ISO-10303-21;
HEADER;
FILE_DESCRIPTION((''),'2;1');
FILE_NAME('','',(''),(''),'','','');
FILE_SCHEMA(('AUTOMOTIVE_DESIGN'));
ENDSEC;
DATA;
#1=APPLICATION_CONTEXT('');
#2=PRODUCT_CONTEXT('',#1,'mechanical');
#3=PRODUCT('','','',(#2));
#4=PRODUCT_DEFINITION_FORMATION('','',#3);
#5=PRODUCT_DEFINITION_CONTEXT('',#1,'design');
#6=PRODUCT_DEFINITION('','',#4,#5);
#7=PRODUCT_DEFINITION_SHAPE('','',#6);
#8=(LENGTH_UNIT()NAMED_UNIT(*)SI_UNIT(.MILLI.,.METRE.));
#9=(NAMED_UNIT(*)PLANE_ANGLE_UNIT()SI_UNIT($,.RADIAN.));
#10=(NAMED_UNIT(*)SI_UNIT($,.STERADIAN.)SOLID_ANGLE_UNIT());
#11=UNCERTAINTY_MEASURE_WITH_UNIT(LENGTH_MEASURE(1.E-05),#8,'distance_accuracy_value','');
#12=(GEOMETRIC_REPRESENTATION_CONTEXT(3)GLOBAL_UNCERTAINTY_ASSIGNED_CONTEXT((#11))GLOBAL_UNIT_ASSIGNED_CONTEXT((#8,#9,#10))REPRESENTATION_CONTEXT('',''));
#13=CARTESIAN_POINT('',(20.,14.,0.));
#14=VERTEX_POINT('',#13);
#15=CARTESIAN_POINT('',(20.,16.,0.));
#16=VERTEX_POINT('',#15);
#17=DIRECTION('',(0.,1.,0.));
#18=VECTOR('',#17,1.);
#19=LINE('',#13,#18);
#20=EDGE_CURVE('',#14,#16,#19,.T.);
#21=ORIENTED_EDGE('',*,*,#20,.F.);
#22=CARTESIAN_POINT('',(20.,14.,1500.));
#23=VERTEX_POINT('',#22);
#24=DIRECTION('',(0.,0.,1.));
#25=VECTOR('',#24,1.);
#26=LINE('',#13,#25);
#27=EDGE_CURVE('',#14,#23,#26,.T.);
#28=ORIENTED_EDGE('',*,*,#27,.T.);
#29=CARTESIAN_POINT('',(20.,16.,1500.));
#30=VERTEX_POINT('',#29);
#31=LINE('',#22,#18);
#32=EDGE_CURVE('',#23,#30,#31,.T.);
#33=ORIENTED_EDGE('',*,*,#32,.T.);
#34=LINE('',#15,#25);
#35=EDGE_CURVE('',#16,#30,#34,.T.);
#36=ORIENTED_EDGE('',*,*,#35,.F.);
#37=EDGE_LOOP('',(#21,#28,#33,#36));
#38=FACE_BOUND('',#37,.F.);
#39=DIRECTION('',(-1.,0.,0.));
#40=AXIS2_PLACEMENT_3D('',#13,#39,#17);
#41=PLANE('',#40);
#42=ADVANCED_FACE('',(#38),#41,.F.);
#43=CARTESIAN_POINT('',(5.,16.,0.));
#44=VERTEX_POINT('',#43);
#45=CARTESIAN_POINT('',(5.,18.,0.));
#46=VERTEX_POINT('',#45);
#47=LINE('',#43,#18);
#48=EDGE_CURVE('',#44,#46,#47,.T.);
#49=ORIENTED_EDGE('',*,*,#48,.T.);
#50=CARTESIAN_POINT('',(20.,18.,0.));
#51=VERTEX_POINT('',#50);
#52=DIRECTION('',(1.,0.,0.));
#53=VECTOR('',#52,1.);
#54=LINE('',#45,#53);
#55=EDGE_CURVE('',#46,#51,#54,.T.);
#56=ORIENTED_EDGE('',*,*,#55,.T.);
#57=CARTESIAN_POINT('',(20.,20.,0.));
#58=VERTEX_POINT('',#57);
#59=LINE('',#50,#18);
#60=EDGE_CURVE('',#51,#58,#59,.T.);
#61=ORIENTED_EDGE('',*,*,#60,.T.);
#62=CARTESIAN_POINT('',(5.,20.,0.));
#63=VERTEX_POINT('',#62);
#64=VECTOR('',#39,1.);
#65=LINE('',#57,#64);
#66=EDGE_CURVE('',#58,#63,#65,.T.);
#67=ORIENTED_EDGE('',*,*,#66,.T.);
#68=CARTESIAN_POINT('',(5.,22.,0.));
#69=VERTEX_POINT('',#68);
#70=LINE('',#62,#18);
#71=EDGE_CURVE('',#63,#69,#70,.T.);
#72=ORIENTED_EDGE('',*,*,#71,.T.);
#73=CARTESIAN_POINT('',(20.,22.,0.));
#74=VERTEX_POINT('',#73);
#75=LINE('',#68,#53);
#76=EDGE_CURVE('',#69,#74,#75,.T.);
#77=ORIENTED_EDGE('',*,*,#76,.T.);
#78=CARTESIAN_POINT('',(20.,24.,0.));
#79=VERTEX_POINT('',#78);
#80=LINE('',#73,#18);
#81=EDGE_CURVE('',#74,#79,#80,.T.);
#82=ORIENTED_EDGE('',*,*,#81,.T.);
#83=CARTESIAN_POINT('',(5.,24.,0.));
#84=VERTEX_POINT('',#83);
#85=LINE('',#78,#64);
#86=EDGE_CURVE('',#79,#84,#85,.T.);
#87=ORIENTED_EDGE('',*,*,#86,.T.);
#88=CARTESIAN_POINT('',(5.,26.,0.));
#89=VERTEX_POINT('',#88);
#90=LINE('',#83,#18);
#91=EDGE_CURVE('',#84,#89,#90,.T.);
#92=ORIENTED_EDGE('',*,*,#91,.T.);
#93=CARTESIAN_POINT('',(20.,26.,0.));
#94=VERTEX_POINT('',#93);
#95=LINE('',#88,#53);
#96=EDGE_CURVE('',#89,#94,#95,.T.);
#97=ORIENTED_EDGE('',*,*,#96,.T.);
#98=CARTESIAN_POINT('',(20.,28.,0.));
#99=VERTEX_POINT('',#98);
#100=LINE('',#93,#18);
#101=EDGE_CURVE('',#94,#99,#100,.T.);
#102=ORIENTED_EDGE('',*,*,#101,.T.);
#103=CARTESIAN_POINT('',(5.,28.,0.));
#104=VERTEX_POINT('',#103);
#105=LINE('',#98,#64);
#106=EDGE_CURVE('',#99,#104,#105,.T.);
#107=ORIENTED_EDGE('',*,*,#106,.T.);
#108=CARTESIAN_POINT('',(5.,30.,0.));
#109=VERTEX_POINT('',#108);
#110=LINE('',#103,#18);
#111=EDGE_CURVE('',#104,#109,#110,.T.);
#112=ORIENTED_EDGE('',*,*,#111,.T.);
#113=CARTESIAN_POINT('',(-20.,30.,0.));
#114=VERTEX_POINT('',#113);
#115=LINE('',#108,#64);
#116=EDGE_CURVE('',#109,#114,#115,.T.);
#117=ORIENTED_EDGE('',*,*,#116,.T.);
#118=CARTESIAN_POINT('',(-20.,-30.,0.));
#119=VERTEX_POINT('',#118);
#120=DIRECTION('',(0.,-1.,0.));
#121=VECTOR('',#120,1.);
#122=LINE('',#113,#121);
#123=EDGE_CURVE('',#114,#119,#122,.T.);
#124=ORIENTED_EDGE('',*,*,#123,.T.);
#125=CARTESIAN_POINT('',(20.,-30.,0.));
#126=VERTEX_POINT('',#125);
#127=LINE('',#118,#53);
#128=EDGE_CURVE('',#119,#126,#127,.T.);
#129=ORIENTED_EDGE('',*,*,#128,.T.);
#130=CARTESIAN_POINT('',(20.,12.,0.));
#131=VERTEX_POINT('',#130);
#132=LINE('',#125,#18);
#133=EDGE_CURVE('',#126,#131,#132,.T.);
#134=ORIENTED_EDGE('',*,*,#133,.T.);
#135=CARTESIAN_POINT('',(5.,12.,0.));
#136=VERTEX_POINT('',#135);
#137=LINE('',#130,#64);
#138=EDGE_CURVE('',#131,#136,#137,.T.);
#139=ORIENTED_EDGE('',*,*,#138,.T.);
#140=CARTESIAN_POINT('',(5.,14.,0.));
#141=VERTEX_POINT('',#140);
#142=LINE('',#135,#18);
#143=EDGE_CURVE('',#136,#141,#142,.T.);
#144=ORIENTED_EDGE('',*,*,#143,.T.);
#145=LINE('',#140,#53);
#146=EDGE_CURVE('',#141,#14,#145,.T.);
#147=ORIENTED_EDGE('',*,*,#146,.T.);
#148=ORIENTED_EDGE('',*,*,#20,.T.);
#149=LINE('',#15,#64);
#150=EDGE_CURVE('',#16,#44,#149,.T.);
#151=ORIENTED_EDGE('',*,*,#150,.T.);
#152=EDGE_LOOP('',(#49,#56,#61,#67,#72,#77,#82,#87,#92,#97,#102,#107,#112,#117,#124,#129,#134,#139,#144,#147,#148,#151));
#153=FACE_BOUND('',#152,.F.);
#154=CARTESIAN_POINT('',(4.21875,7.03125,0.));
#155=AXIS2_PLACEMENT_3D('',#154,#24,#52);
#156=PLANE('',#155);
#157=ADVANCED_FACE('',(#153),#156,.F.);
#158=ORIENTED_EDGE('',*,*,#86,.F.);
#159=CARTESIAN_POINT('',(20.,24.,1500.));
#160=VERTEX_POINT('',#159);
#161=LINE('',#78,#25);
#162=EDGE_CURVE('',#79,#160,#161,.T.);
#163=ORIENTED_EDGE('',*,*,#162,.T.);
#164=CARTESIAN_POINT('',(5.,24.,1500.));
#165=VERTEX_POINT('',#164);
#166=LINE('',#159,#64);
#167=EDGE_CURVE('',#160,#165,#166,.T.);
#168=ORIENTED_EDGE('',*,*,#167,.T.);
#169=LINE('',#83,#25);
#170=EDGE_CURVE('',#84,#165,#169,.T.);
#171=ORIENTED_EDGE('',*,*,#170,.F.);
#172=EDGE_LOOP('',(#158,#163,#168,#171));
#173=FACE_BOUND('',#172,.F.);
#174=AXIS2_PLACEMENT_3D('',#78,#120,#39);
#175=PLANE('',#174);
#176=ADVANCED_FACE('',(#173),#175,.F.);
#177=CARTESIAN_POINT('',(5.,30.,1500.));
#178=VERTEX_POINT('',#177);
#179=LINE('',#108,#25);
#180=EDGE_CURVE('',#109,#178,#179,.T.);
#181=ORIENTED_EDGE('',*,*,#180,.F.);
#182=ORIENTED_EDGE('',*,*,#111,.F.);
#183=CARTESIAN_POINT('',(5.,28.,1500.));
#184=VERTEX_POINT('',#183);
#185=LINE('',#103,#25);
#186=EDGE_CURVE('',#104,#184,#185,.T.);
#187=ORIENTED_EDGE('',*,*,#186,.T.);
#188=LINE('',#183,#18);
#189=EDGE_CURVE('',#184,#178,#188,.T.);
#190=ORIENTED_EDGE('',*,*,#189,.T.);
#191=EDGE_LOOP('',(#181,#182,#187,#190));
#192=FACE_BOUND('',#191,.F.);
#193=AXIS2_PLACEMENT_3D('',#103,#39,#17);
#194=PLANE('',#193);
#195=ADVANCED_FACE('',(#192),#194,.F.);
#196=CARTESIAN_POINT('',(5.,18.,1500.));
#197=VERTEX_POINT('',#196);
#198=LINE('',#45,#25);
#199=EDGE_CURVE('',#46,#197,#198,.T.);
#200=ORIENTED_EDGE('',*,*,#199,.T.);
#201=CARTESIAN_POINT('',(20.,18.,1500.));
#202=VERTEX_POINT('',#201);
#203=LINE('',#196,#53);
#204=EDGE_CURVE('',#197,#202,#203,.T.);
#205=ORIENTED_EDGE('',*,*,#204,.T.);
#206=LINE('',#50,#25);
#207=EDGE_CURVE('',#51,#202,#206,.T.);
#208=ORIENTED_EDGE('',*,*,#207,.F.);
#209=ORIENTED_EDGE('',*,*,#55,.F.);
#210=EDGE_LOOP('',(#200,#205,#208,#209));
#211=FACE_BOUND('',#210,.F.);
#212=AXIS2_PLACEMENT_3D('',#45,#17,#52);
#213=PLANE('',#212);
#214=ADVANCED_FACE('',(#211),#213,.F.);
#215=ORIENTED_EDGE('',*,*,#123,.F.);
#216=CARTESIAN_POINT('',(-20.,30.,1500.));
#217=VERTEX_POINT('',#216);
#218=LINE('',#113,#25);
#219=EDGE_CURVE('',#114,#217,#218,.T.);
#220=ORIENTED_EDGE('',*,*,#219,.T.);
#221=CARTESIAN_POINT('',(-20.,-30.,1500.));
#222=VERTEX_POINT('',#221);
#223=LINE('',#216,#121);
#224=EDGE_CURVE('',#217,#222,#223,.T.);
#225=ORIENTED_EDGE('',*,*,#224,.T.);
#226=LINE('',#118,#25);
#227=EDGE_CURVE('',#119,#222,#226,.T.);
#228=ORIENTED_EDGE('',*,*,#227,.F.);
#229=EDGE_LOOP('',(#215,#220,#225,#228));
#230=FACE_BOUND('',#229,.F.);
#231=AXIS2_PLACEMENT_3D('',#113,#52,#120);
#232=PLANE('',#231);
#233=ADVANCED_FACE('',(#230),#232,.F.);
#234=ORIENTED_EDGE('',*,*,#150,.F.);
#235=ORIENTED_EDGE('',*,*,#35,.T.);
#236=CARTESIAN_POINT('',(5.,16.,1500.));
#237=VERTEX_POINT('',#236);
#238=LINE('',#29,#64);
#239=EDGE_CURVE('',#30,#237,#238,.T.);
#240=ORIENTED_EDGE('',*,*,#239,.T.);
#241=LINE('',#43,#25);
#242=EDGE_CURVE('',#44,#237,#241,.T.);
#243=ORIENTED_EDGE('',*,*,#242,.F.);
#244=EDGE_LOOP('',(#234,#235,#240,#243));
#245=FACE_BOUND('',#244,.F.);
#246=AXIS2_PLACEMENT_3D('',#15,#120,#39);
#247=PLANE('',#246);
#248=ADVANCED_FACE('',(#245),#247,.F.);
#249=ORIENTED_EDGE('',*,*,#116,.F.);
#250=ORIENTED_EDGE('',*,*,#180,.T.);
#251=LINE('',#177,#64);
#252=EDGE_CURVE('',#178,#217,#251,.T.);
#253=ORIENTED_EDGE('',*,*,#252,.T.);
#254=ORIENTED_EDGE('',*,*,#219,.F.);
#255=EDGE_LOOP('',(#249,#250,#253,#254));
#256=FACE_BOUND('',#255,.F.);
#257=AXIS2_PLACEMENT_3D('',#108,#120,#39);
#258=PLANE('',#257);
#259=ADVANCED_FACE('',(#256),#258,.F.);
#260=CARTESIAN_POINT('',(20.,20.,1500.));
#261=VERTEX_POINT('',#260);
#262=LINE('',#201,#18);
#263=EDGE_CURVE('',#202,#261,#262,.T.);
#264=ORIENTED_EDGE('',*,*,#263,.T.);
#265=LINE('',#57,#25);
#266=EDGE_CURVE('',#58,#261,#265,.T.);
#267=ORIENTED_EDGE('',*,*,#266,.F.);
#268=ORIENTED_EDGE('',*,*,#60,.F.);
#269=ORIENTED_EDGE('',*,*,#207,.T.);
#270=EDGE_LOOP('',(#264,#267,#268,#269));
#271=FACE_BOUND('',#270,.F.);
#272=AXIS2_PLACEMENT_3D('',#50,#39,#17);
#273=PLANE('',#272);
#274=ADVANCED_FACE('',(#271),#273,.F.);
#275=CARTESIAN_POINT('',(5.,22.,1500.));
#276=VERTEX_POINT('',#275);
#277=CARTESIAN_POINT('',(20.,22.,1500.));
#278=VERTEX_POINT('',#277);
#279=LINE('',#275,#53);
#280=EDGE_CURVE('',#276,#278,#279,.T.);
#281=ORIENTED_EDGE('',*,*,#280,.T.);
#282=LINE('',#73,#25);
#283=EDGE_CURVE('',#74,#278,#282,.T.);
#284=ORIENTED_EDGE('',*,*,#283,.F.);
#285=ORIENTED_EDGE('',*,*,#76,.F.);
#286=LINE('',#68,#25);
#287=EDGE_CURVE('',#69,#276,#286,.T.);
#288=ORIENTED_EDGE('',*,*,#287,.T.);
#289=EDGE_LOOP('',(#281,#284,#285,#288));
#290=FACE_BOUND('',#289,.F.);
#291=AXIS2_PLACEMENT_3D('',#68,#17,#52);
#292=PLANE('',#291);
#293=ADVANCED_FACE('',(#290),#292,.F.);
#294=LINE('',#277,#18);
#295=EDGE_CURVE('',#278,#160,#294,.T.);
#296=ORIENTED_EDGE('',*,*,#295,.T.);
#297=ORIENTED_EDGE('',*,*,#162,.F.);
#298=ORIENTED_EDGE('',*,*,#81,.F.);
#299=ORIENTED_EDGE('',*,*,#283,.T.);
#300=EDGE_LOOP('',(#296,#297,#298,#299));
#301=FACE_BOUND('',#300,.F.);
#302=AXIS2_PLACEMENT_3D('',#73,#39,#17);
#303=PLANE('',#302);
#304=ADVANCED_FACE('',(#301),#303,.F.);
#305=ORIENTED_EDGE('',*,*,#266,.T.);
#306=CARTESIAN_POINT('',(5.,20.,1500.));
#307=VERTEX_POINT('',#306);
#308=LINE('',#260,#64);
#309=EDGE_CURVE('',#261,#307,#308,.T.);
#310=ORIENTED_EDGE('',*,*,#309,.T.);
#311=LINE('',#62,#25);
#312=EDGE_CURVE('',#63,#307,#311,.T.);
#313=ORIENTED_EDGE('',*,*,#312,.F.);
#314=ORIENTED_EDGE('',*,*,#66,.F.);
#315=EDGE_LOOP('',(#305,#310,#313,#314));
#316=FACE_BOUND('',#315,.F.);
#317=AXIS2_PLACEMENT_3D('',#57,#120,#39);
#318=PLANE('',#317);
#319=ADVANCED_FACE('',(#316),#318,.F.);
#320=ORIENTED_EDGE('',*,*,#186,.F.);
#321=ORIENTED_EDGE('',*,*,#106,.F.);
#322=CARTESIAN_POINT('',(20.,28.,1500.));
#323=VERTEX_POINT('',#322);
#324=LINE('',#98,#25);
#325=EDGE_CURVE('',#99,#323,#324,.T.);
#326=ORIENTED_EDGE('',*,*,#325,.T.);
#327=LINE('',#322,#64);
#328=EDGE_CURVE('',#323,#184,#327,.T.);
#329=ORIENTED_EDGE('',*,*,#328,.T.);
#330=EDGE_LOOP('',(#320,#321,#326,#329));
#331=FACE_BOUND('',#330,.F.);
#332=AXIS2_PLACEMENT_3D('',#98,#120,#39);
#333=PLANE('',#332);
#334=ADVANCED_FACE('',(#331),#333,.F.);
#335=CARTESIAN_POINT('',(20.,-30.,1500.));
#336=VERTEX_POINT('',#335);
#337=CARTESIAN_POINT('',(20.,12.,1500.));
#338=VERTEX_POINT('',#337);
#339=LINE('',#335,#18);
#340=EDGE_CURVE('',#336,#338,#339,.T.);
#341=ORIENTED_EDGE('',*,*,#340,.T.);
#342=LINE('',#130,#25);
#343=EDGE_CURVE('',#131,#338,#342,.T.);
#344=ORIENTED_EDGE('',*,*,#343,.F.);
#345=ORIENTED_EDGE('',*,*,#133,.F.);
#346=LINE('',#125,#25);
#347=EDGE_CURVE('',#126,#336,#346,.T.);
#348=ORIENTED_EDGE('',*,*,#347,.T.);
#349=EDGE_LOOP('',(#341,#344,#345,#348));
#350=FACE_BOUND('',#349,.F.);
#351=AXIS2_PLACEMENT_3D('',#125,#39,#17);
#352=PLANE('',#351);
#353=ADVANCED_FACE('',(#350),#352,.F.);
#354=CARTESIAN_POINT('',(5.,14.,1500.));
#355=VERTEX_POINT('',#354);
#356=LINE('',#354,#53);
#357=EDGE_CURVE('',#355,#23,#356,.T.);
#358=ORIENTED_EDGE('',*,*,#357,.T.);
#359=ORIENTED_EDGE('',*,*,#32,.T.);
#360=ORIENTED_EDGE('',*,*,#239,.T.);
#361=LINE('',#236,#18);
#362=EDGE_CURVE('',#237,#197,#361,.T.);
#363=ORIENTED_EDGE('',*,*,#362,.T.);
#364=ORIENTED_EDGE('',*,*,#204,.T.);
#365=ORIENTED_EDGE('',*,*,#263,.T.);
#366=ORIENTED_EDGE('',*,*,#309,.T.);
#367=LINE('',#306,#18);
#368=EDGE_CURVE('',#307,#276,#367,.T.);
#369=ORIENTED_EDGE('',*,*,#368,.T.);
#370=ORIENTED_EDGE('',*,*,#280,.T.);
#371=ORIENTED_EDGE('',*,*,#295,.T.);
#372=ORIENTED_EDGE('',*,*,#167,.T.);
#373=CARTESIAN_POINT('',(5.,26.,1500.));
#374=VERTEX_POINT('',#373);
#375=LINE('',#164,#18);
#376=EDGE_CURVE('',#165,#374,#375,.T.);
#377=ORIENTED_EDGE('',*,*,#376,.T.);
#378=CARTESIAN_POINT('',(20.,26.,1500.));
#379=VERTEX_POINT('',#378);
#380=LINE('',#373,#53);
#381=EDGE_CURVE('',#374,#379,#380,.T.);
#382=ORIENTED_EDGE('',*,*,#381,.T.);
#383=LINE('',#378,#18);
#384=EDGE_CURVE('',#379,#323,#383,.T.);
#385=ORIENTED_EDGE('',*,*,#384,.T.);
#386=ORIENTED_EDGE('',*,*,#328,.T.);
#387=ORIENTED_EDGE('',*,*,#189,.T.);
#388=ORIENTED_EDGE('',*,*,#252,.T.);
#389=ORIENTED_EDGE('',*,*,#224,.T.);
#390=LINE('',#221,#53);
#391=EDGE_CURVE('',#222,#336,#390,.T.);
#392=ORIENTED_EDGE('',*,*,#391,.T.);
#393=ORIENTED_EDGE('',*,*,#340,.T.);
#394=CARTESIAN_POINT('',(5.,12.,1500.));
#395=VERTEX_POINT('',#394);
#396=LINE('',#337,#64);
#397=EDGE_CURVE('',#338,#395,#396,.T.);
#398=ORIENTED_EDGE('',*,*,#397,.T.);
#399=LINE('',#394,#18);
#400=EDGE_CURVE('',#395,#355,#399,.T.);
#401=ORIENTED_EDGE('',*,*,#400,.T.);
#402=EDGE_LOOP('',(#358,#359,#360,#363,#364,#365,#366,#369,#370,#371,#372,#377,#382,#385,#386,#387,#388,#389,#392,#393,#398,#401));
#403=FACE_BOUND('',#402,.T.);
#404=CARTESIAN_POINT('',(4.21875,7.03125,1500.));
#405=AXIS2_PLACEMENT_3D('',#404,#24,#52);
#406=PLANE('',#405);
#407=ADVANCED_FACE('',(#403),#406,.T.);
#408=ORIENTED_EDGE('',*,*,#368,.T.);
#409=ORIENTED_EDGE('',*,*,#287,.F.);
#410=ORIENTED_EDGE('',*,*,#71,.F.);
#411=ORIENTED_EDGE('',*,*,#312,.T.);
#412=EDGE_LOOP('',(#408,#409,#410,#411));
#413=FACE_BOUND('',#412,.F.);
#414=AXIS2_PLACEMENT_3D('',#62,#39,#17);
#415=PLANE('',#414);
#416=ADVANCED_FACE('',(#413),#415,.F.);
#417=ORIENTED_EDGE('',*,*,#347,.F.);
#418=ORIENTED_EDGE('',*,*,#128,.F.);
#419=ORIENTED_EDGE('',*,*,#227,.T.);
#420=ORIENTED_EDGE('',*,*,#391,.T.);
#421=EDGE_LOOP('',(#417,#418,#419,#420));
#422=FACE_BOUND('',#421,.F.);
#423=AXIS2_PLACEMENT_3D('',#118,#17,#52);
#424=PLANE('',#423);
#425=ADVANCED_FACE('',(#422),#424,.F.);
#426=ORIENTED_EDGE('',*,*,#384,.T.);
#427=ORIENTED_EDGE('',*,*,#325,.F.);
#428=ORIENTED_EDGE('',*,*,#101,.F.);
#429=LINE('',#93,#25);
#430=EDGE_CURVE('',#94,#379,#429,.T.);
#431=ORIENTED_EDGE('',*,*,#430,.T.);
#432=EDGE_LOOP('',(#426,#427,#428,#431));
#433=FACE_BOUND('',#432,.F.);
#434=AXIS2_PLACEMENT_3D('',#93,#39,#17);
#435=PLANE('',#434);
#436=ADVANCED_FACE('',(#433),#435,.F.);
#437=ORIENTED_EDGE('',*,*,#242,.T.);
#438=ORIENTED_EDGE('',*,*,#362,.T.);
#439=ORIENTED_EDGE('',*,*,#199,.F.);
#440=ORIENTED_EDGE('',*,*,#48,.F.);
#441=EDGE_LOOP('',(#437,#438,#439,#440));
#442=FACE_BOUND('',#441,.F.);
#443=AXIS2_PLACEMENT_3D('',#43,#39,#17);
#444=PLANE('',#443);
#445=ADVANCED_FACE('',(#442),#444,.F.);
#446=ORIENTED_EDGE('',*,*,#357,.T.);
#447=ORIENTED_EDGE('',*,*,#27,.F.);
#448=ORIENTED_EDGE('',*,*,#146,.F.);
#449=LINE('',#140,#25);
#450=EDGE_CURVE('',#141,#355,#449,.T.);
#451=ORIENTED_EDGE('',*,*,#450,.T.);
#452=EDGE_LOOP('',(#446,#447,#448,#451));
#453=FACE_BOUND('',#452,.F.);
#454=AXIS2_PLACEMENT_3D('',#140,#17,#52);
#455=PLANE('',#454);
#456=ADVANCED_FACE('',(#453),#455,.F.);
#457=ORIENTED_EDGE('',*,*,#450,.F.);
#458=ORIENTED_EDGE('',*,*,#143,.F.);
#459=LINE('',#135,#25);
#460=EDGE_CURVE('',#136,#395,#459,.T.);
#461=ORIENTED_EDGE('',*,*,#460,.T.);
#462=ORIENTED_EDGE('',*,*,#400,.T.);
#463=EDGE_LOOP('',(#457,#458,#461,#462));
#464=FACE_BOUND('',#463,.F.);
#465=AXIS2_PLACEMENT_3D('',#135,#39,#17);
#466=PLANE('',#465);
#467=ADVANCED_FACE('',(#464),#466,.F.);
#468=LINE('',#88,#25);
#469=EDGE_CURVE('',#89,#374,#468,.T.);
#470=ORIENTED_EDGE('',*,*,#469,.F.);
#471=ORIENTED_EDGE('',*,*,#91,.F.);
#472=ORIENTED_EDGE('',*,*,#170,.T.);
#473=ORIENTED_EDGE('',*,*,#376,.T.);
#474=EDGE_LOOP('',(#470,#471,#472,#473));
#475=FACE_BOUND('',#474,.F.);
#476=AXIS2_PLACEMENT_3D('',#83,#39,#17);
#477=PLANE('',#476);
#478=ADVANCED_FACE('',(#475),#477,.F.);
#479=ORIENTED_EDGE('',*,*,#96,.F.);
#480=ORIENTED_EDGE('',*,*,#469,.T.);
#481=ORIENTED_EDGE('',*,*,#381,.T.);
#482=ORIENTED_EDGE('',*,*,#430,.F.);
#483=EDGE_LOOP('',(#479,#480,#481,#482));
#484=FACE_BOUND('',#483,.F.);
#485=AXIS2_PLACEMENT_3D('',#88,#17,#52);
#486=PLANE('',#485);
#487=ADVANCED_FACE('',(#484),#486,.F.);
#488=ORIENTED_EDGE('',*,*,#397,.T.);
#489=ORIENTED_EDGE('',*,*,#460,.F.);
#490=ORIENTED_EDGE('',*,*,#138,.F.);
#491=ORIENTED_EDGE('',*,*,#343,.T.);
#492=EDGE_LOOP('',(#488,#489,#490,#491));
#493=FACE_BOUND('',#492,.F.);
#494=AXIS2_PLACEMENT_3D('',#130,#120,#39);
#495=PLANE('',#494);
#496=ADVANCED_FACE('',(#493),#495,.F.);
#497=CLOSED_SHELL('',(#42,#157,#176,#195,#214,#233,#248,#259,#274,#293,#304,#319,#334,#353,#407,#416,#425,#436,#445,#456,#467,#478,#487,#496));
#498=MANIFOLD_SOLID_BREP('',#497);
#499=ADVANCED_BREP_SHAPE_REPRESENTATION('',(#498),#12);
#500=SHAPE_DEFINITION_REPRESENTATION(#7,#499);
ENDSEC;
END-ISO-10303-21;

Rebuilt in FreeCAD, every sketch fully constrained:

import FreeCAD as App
import Part
import Sketcher

V = App.Vector
Q = App.Units.Quantity


def add_polygon(sketch, points):
    """Adds a closed chain of lines whose ends are joined by coincident constraints."""
    first, n = sketch.GeometryCount, len(points)
    for a, b in zip(points, points[1:] + points[:1]):
        sketch.addGeometry(Part.LineSegment(App.Vector(*a, 0), App.Vector(*b, 0)), False)
    for i in range(n):
        sketch.addConstraint(Sketcher.Constraint("Coincident", first + i, 2, first + (i + 1) % n, 1))

doc = App.newDocument("Part")
body = doc.addObject("PartDesign::Body", "Body")

# Sketch on XY plane
sketch1 = doc.addObject("Sketcher::SketchObject", "Sketch")
body.addObject(sketch1)
sketch1.AttachmentSupport = (doc.XY_Plane, [""])
sketch1.MapMode = "FlatFace"
add_polygon(sketch1, [(-20, 30), (-20, -30), (20, -30), (20, 12), (5, 12), (5, 14), (20, 14), (20, 16), (5, 16), (5, 18), (20, 18), (20, 20), (5, 20), (5, 22), (20, 22), (20, 24), (5, 24), (5, 26), (20, 26), (20, 28), (5, 28), (5, 30)])  # lines 0-21
sketch1.addConstraint(Sketcher.Constraint("Vertical", 0))
sketch1.addConstraint(Sketcher.Constraint("Horizontal", 1))
sketch1.addConstraint(Sketcher.Constraint("Vertical", 2))
sketch1.addConstraint(Sketcher.Constraint("Horizontal", 3))
sketch1.addConstraint(Sketcher.Constraint("Vertical", 4))
sketch1.addConstraint(Sketcher.Constraint("Horizontal", 5))
sketch1.addConstraint(Sketcher.Constraint("Vertical", 6))
sketch1.addConstraint(Sketcher.Constraint("Horizontal", 7))
sketch1.addConstraint(Sketcher.Constraint("Vertical", 8))
sketch1.addConstraint(Sketcher.Constraint("Horizontal", 9))
sketch1.addConstraint(Sketcher.Constraint("Vertical", 10))
sketch1.addConstraint(Sketcher.Constraint("Horizontal", 11))
sketch1.addConstraint(Sketcher.Constraint("Vertical", 12))
sketch1.addConstraint(Sketcher.Constraint("Horizontal", 13))
sketch1.addConstraint(Sketcher.Constraint("Vertical", 14))
sketch1.addConstraint(Sketcher.Constraint("Horizontal", 15))
sketch1.addConstraint(Sketcher.Constraint("Vertical", 16))
sketch1.addConstraint(Sketcher.Constraint("Horizontal", 17))
sketch1.addConstraint(Sketcher.Constraint("Vertical", 18))
sketch1.addConstraint(Sketcher.Constraint("Horizontal", 19))
sketch1.addConstraint(Sketcher.Constraint("Vertical", 20))
sketch1.addConstraint(Sketcher.Constraint("Horizontal", 21))
sketch1.addConstraint(Sketcher.Constraint("Symmetric", 1, 2, 21, 2, -1, 1))
sketch1.addConstraint(Sketcher.Constraint("Vertical", 2, 2, 5, 2))
sketch1.addConstraint(Sketcher.Constraint("Vertical", 4, 2, 7, 2))
sketch1.addConstraint(Sketcher.Constraint("Vertical", 6, 2, 9, 2))
sketch1.addConstraint(Sketcher.Constraint("Vertical", 8, 2, 11, 2))
sketch1.addConstraint(Sketcher.Constraint("Vertical", 10, 2, 13, 2))
sketch1.addConstraint(Sketcher.Constraint("Vertical", 12, 2, 15, 2))
sketch1.addConstraint(Sketcher.Constraint("Vertical", 14, 2, 17, 2))
sketch1.addConstraint(Sketcher.Constraint("Vertical", 16, 2, 19, 2))
sketch1.addConstraint(Sketcher.Constraint("Equal", 4, 6))
sketch1.addConstraint(Sketcher.Constraint("Equal", 6, 8))
sketch1.addConstraint(Sketcher.Constraint("Equal", 8, 10))
sketch1.addConstraint(Sketcher.Constraint("Equal", 10, 12))
sketch1.addConstraint(Sketcher.Constraint("Equal", 12, 14))
sketch1.addConstraint(Sketcher.Constraint("Equal", 14, 16))
sketch1.addConstraint(Sketcher.Constraint("Equal", 16, 18))
sketch1.addConstraint(Sketcher.Constraint("Equal", 18, 20))
sketch1.addConstraint(Sketcher.Constraint("DistanceX", 1, 1, 1, 2, Q("40 mm")))
sketch1.addConstraint(Sketcher.Constraint("DistanceX", 3, 2, 3, 1, Q("15 mm")))
sketch1.addConstraint(Sketcher.Constraint("DistanceY", 0, 2, 0, 1, Q("60 mm")))
sketch1.addConstraint(Sketcher.Constraint("DistanceY", 2, 1, 2, 2, Q("42 mm")))
pad1 = doc.addObject("PartDesign::Pad", "Pad")
body.addObject(pad1)
pad1.Profile = sketch1
pad1.Length = 1500

doc.recompute()
